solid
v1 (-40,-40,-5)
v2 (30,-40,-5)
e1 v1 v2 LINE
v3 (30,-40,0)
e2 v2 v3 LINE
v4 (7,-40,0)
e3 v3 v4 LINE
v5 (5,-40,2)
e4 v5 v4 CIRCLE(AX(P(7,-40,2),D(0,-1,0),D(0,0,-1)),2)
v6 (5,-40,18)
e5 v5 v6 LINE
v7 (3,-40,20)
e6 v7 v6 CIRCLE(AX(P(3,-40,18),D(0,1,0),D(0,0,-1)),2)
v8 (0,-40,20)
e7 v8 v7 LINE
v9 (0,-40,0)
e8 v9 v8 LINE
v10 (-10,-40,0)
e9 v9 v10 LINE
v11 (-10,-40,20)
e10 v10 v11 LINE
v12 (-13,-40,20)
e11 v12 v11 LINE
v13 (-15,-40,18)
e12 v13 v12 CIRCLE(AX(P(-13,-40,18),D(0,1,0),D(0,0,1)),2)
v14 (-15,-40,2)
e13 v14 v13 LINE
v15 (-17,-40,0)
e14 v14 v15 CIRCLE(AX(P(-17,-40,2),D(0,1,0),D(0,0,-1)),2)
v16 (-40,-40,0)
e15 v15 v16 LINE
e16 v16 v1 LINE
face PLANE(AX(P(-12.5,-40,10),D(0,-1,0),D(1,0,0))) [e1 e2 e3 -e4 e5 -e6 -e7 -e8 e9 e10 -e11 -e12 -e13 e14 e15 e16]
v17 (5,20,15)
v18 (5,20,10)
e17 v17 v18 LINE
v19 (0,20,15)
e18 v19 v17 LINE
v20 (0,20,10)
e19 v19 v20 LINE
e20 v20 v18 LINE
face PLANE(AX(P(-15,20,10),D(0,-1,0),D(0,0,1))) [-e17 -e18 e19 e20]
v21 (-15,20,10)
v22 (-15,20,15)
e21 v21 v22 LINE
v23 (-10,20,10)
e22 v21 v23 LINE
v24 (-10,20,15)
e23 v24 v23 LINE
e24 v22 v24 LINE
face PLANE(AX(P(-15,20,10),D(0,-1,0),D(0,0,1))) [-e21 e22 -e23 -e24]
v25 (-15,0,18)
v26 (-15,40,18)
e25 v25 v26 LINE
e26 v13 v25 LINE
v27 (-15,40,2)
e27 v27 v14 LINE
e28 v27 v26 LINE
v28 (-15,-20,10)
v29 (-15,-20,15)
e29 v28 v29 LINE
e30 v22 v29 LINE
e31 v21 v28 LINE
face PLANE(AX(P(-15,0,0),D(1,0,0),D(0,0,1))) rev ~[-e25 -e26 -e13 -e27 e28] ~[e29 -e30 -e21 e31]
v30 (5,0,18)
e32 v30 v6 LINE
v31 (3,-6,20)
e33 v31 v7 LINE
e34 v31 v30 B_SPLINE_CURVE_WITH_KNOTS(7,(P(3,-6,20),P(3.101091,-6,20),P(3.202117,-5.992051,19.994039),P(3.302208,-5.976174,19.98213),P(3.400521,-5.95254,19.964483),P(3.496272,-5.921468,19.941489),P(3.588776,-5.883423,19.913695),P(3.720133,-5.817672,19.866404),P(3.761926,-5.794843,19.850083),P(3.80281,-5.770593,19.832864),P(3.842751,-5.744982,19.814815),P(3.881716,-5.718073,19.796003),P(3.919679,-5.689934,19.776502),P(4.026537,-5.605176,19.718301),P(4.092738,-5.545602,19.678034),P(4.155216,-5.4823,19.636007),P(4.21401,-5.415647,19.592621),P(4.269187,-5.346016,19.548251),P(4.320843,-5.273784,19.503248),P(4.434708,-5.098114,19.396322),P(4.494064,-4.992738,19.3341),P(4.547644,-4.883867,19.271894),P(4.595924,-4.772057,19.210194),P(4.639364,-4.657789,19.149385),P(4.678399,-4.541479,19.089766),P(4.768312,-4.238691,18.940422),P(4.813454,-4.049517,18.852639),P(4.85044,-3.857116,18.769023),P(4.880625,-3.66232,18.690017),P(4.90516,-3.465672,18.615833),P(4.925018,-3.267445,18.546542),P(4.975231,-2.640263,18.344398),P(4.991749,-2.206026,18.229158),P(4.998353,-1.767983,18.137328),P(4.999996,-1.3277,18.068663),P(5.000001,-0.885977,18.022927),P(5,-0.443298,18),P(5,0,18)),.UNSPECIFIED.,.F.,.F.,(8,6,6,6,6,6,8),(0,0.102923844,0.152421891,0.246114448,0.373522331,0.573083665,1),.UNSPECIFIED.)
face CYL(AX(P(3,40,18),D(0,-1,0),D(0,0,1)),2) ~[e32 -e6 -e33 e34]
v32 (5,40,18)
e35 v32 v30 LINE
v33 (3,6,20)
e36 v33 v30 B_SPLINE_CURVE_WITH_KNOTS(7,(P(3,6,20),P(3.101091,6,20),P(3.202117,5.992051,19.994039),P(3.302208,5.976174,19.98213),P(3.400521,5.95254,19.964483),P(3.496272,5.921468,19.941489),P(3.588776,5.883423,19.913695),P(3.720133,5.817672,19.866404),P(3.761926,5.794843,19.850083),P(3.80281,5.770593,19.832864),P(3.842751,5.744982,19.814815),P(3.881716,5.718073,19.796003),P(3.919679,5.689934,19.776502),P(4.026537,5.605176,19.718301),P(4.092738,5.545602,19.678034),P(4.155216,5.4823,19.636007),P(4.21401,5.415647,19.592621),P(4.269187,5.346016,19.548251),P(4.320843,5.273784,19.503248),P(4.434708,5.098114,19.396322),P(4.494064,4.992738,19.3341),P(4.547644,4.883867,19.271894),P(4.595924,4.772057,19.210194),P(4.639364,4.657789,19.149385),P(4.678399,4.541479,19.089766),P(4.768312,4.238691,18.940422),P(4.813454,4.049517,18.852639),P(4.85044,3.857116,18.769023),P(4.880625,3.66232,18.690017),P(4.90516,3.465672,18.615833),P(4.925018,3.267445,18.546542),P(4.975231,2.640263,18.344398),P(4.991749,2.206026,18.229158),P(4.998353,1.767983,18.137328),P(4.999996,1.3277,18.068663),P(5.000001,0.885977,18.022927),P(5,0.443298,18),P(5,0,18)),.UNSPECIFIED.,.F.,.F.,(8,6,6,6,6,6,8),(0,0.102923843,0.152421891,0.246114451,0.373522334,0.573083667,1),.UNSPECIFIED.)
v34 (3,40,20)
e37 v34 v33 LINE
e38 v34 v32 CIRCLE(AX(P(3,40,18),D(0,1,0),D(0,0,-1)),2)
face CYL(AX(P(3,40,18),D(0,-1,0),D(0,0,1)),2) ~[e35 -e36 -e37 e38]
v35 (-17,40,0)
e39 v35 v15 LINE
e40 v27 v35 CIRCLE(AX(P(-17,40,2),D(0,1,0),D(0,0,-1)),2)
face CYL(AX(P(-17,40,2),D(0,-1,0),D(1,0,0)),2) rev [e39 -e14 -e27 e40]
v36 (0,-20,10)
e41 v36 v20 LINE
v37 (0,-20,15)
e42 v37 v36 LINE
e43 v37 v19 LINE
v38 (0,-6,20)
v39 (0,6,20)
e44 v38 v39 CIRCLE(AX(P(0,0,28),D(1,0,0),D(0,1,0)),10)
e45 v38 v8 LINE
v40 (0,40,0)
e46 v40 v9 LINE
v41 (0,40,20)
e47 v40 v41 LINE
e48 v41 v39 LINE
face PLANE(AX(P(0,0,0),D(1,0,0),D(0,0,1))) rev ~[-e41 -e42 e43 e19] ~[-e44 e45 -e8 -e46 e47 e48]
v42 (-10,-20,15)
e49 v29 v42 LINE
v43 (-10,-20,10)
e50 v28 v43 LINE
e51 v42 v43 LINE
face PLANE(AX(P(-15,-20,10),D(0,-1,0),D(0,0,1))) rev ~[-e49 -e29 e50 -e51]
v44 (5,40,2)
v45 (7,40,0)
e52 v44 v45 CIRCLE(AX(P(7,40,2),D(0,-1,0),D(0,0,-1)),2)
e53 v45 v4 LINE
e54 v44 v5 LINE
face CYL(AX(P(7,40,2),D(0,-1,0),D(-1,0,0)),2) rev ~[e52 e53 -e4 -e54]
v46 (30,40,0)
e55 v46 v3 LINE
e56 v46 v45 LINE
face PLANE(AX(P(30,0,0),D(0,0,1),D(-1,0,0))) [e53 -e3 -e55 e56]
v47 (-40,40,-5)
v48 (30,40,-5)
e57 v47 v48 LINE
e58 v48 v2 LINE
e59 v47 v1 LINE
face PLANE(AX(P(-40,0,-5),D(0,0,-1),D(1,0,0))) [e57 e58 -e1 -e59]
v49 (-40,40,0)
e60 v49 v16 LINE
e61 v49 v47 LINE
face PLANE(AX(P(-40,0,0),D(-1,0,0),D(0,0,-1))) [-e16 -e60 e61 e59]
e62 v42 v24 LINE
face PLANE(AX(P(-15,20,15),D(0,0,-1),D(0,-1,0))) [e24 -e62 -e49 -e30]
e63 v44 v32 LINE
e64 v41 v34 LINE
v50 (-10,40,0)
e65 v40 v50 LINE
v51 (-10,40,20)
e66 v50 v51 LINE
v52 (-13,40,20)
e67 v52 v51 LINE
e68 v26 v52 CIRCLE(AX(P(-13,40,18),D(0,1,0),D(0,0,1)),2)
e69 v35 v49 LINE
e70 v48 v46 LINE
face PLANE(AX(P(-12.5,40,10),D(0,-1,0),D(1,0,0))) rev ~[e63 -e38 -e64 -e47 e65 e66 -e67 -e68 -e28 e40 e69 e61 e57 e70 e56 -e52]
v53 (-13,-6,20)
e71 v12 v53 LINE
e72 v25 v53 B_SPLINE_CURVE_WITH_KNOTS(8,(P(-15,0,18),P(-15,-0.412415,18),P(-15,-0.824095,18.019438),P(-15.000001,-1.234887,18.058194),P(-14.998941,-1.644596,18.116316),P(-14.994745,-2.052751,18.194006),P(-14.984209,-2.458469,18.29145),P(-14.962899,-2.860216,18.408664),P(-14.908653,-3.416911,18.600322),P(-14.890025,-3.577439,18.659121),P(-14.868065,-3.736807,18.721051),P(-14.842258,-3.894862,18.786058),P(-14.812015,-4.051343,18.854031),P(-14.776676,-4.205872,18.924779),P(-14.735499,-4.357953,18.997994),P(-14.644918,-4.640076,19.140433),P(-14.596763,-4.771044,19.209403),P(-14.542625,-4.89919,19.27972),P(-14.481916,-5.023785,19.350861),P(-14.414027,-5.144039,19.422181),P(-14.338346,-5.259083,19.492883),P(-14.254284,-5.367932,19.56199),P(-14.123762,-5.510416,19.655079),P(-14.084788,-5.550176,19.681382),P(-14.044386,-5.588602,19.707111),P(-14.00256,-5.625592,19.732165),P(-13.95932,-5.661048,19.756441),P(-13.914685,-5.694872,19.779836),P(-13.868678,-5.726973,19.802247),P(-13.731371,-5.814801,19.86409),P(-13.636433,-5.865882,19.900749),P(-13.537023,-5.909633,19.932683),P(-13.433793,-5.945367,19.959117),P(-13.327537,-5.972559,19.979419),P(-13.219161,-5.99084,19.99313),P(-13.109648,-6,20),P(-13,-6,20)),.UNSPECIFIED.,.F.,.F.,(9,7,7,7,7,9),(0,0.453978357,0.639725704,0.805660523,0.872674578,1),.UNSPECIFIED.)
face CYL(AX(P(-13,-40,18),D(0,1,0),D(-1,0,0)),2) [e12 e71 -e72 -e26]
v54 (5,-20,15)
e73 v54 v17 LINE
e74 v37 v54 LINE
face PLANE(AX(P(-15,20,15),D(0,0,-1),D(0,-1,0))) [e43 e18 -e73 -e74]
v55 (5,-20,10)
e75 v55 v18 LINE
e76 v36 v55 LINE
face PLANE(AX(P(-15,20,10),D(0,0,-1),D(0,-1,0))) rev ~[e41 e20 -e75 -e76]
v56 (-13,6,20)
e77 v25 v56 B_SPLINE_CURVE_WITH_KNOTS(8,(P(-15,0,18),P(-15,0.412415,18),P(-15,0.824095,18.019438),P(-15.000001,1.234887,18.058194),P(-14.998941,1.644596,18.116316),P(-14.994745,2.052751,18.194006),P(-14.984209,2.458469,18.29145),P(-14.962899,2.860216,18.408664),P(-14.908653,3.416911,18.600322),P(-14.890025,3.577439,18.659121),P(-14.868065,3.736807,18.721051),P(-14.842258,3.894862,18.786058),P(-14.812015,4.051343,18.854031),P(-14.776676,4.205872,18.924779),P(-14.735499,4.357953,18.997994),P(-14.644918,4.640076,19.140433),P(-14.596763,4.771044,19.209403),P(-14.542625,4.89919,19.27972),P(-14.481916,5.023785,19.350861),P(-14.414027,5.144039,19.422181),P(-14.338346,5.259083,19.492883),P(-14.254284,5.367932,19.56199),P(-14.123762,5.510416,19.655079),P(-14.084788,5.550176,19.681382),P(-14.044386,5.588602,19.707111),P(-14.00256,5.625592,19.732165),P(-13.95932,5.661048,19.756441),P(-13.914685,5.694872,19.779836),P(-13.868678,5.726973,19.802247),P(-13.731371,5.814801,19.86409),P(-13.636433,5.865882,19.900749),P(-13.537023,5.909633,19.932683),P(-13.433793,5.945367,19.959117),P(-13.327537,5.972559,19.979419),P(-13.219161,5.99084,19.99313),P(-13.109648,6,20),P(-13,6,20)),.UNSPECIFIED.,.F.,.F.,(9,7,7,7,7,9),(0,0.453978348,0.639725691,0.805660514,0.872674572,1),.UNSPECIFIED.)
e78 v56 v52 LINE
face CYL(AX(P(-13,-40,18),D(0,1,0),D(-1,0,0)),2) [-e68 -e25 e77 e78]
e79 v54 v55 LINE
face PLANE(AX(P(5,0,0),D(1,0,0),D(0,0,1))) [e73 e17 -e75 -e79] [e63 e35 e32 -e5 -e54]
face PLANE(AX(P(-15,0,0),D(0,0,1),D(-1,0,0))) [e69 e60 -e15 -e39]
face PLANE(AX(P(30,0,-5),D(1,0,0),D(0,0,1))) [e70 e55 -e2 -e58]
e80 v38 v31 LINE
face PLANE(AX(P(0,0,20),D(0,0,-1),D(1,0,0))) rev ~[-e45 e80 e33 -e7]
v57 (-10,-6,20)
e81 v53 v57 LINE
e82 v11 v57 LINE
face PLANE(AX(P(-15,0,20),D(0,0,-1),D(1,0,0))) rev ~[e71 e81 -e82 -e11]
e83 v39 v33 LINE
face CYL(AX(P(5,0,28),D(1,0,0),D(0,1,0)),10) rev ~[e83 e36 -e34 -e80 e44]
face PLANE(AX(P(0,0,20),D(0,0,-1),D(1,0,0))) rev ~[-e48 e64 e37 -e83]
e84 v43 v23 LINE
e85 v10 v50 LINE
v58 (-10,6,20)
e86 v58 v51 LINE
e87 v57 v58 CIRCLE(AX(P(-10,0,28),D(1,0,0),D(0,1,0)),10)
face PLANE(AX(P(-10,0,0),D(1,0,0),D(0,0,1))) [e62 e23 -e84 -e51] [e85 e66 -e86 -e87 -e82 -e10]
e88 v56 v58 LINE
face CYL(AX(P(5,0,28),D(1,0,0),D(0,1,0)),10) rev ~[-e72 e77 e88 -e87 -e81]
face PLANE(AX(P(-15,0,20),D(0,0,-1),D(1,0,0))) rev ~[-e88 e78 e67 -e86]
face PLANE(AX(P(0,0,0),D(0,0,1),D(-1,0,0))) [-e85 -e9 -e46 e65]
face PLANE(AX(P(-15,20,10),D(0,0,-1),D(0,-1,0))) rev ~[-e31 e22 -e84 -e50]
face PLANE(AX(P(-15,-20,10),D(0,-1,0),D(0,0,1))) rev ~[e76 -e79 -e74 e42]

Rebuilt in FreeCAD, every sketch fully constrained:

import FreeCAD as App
import Part
import Sketcher


def edges_at(feature, points):
    """Names of the edges that pass closest to the given points."""
    edges = feature.Shape.Edges
    near = lambda p: min(range(len(edges)), key=lambda i: edges[i].distToShape(Part.Vertex(*p))[0])
    return sorted({f"Edge{near(p) + 1}" for p in points})


def add_polygon(sketch, points):
    """Adds a closed chain of lines whose ends are joined by coincident constraints."""
    first, n = sketch.GeometryCount, len(points)
    for a, b in zip(points, points[1:] + points[:1]):
        sketch.addGeometry(Part.LineSegment(App.Vector(*a, 0), App.Vector(*b, 0)), False)
    for i in range(n):
        sketch.addConstraint(Sketcher.Constraint("Coincident", first + i, 2, first + (i + 1) % n, 1))

doc = App.newDocument("Part")
body = doc.addObject("PartDesign::Body", "Body")

sketch1 = body.newObject("Sketcher::SketchObject", "Sketch")
sketch1.AttachmentSupport = (doc.getObject("XZ_Plane"), [""])
sketch1.MapMode = "FlatFace"
add_polygon(sketch1, [(-15, 20), (-15, 0), (-40, 0), (-40, -5), (30, -5), (30, 0), (5, 0), (5, 20), (0, 20), (0, 0), (-10, 0), (-10, 20)])
sketch1.addConstraint([
    Sketcher.Constraint("Vertical", 0),
    Sketcher.Constraint("Horizontal", 1),
    Sketcher.Constraint("Vertical", 2),
    Sketcher.Constraint("Horizontal", 3),
    Sketcher.Constraint("Vertical", 4),
    Sketcher.Constraint("Horizontal", 5),
    Sketcher.Constraint("Vertical", 6),
    Sketcher.Constraint("Horizontal", 7),
    Sketcher.Constraint("Vertical", 8),
    Sketcher.Constraint("Horizontal", 9),
    Sketcher.Constraint("Vertical", 10),
    Sketcher.Constraint("Horizontal", 11),
    Sketcher.Constraint("Coincident", 8, 2, -1, 1),
    Sketcher.Constraint("PointOnObject", 0, 2, -1),
    Sketcher.Constraint("PointOnObject", 4, 2, -1),
    Sketcher.Constraint("Horizontal", 7, 2, 10, 2),
    Sketcher.Constraint("Equal", 1, 5),
    Sketcher.Constraint("Equal", 7, 11),
    Sketcher.Constraint("Equal", 11, 2),
    Sketcher.Constraint("DistanceX", 1, 2, 1, 1, 25.0),
    Sketcher.Constraint("DistanceX", 3, 1, 3, 2, 70.0),
    Sketcher.Constraint("DistanceX", 7, 2, 7, 1, 5.0),
    Sketcher.Constraint("DistanceY", 0, 2, 0, 1, 20.0),
])
pad1 = body.newObject("PartDesign::Pad", "Pad")
pad1.Profile = sketch1
pad1.Length = 80
pad1.Midplane = True
doc.recompute()

fillet = body.newObject("PartDesign::Fillet", "Fillet")
fillet.Base = (pad1, edges_at(pad1, [(5, 0, 0), (-15, 0, 0)]))
fillet.Radius = 2
doc.recompute()

fillet2 = body.newObject("PartDesign::Fillet", "Fillet001")
fillet2.Base = (fillet, edges_at(fillet, [(-15, 0, 20), (5, 0, 20)]))
fillet2.Radius = 2

sketch2 = body.newObject("Sketcher::SketchObject", "Sketch001")
sketch2.AttachmentSupport = (doc.getObject("YZ_Plane"), [""])
sketch2.MapMode = "FlatFace"
sketch2.AttachmentOffset = App.Placement(App.Vector(0, 0, -15), App.Rotation())
add_polygon(sketch2, [(20, 15), (20, 10), (-20, 10), (-20, 15)])
sketch2.addConstraint([
    Sketcher.Constraint("Vertical", 0),
    Sketcher.Constraint("Horizontal", 1),
    Sketcher.Constraint("Vertical", 2),
    Sketcher.Constraint("Horizontal", 3),
    Sketcher.Constraint("DistanceX", 1, 2, 1, 1, 40.0),
    Sketcher.Constraint("DistanceY", 0, 2, 0, 1, 5.0),
    Sketcher.Constraint("DistanceX", -1, 1, 0, 2, 20.0),
    Sketcher.Constraint("DistanceY", -1, 1, 0, 2, 10.0),
])
pocket1 = body.newObject("PartDesign::Pocket", "Pocket")
pocket1.Profile = sketch2
pocket1.Length = 25
pocket1.Reversed = True

sketch3 = body.newObject("Sketcher::SketchObject", "Sketch002")
sketch3.AttachmentSupport = (doc.getObject("YZ_Plane"), [""])
sketch3.MapMode = "FlatFace"
sketch3.AttachmentOffset = App.Placement(App.Vector(0, 0, 5), App.Rotation())
sketch3.addGeometry(Part.Circle(App.Vector(0, 28, 0), App.Vector(0, 0, 1), 10), False)
sketch3.addConstraint([
    Sketcher.Constraint("PointOnObject", 0, 3, -2),
    Sketcher.Constraint("Diameter", 0, 20.0),
    Sketcher.Constraint("DistanceY", -1, 1, 0, 3, 28.0),
])
pocket2 = body.newObject("PartDesign::Pocket", "Pocket001")
pocket2.Profile = sketch3
pocket2.Length = 25

doc.recompute()
